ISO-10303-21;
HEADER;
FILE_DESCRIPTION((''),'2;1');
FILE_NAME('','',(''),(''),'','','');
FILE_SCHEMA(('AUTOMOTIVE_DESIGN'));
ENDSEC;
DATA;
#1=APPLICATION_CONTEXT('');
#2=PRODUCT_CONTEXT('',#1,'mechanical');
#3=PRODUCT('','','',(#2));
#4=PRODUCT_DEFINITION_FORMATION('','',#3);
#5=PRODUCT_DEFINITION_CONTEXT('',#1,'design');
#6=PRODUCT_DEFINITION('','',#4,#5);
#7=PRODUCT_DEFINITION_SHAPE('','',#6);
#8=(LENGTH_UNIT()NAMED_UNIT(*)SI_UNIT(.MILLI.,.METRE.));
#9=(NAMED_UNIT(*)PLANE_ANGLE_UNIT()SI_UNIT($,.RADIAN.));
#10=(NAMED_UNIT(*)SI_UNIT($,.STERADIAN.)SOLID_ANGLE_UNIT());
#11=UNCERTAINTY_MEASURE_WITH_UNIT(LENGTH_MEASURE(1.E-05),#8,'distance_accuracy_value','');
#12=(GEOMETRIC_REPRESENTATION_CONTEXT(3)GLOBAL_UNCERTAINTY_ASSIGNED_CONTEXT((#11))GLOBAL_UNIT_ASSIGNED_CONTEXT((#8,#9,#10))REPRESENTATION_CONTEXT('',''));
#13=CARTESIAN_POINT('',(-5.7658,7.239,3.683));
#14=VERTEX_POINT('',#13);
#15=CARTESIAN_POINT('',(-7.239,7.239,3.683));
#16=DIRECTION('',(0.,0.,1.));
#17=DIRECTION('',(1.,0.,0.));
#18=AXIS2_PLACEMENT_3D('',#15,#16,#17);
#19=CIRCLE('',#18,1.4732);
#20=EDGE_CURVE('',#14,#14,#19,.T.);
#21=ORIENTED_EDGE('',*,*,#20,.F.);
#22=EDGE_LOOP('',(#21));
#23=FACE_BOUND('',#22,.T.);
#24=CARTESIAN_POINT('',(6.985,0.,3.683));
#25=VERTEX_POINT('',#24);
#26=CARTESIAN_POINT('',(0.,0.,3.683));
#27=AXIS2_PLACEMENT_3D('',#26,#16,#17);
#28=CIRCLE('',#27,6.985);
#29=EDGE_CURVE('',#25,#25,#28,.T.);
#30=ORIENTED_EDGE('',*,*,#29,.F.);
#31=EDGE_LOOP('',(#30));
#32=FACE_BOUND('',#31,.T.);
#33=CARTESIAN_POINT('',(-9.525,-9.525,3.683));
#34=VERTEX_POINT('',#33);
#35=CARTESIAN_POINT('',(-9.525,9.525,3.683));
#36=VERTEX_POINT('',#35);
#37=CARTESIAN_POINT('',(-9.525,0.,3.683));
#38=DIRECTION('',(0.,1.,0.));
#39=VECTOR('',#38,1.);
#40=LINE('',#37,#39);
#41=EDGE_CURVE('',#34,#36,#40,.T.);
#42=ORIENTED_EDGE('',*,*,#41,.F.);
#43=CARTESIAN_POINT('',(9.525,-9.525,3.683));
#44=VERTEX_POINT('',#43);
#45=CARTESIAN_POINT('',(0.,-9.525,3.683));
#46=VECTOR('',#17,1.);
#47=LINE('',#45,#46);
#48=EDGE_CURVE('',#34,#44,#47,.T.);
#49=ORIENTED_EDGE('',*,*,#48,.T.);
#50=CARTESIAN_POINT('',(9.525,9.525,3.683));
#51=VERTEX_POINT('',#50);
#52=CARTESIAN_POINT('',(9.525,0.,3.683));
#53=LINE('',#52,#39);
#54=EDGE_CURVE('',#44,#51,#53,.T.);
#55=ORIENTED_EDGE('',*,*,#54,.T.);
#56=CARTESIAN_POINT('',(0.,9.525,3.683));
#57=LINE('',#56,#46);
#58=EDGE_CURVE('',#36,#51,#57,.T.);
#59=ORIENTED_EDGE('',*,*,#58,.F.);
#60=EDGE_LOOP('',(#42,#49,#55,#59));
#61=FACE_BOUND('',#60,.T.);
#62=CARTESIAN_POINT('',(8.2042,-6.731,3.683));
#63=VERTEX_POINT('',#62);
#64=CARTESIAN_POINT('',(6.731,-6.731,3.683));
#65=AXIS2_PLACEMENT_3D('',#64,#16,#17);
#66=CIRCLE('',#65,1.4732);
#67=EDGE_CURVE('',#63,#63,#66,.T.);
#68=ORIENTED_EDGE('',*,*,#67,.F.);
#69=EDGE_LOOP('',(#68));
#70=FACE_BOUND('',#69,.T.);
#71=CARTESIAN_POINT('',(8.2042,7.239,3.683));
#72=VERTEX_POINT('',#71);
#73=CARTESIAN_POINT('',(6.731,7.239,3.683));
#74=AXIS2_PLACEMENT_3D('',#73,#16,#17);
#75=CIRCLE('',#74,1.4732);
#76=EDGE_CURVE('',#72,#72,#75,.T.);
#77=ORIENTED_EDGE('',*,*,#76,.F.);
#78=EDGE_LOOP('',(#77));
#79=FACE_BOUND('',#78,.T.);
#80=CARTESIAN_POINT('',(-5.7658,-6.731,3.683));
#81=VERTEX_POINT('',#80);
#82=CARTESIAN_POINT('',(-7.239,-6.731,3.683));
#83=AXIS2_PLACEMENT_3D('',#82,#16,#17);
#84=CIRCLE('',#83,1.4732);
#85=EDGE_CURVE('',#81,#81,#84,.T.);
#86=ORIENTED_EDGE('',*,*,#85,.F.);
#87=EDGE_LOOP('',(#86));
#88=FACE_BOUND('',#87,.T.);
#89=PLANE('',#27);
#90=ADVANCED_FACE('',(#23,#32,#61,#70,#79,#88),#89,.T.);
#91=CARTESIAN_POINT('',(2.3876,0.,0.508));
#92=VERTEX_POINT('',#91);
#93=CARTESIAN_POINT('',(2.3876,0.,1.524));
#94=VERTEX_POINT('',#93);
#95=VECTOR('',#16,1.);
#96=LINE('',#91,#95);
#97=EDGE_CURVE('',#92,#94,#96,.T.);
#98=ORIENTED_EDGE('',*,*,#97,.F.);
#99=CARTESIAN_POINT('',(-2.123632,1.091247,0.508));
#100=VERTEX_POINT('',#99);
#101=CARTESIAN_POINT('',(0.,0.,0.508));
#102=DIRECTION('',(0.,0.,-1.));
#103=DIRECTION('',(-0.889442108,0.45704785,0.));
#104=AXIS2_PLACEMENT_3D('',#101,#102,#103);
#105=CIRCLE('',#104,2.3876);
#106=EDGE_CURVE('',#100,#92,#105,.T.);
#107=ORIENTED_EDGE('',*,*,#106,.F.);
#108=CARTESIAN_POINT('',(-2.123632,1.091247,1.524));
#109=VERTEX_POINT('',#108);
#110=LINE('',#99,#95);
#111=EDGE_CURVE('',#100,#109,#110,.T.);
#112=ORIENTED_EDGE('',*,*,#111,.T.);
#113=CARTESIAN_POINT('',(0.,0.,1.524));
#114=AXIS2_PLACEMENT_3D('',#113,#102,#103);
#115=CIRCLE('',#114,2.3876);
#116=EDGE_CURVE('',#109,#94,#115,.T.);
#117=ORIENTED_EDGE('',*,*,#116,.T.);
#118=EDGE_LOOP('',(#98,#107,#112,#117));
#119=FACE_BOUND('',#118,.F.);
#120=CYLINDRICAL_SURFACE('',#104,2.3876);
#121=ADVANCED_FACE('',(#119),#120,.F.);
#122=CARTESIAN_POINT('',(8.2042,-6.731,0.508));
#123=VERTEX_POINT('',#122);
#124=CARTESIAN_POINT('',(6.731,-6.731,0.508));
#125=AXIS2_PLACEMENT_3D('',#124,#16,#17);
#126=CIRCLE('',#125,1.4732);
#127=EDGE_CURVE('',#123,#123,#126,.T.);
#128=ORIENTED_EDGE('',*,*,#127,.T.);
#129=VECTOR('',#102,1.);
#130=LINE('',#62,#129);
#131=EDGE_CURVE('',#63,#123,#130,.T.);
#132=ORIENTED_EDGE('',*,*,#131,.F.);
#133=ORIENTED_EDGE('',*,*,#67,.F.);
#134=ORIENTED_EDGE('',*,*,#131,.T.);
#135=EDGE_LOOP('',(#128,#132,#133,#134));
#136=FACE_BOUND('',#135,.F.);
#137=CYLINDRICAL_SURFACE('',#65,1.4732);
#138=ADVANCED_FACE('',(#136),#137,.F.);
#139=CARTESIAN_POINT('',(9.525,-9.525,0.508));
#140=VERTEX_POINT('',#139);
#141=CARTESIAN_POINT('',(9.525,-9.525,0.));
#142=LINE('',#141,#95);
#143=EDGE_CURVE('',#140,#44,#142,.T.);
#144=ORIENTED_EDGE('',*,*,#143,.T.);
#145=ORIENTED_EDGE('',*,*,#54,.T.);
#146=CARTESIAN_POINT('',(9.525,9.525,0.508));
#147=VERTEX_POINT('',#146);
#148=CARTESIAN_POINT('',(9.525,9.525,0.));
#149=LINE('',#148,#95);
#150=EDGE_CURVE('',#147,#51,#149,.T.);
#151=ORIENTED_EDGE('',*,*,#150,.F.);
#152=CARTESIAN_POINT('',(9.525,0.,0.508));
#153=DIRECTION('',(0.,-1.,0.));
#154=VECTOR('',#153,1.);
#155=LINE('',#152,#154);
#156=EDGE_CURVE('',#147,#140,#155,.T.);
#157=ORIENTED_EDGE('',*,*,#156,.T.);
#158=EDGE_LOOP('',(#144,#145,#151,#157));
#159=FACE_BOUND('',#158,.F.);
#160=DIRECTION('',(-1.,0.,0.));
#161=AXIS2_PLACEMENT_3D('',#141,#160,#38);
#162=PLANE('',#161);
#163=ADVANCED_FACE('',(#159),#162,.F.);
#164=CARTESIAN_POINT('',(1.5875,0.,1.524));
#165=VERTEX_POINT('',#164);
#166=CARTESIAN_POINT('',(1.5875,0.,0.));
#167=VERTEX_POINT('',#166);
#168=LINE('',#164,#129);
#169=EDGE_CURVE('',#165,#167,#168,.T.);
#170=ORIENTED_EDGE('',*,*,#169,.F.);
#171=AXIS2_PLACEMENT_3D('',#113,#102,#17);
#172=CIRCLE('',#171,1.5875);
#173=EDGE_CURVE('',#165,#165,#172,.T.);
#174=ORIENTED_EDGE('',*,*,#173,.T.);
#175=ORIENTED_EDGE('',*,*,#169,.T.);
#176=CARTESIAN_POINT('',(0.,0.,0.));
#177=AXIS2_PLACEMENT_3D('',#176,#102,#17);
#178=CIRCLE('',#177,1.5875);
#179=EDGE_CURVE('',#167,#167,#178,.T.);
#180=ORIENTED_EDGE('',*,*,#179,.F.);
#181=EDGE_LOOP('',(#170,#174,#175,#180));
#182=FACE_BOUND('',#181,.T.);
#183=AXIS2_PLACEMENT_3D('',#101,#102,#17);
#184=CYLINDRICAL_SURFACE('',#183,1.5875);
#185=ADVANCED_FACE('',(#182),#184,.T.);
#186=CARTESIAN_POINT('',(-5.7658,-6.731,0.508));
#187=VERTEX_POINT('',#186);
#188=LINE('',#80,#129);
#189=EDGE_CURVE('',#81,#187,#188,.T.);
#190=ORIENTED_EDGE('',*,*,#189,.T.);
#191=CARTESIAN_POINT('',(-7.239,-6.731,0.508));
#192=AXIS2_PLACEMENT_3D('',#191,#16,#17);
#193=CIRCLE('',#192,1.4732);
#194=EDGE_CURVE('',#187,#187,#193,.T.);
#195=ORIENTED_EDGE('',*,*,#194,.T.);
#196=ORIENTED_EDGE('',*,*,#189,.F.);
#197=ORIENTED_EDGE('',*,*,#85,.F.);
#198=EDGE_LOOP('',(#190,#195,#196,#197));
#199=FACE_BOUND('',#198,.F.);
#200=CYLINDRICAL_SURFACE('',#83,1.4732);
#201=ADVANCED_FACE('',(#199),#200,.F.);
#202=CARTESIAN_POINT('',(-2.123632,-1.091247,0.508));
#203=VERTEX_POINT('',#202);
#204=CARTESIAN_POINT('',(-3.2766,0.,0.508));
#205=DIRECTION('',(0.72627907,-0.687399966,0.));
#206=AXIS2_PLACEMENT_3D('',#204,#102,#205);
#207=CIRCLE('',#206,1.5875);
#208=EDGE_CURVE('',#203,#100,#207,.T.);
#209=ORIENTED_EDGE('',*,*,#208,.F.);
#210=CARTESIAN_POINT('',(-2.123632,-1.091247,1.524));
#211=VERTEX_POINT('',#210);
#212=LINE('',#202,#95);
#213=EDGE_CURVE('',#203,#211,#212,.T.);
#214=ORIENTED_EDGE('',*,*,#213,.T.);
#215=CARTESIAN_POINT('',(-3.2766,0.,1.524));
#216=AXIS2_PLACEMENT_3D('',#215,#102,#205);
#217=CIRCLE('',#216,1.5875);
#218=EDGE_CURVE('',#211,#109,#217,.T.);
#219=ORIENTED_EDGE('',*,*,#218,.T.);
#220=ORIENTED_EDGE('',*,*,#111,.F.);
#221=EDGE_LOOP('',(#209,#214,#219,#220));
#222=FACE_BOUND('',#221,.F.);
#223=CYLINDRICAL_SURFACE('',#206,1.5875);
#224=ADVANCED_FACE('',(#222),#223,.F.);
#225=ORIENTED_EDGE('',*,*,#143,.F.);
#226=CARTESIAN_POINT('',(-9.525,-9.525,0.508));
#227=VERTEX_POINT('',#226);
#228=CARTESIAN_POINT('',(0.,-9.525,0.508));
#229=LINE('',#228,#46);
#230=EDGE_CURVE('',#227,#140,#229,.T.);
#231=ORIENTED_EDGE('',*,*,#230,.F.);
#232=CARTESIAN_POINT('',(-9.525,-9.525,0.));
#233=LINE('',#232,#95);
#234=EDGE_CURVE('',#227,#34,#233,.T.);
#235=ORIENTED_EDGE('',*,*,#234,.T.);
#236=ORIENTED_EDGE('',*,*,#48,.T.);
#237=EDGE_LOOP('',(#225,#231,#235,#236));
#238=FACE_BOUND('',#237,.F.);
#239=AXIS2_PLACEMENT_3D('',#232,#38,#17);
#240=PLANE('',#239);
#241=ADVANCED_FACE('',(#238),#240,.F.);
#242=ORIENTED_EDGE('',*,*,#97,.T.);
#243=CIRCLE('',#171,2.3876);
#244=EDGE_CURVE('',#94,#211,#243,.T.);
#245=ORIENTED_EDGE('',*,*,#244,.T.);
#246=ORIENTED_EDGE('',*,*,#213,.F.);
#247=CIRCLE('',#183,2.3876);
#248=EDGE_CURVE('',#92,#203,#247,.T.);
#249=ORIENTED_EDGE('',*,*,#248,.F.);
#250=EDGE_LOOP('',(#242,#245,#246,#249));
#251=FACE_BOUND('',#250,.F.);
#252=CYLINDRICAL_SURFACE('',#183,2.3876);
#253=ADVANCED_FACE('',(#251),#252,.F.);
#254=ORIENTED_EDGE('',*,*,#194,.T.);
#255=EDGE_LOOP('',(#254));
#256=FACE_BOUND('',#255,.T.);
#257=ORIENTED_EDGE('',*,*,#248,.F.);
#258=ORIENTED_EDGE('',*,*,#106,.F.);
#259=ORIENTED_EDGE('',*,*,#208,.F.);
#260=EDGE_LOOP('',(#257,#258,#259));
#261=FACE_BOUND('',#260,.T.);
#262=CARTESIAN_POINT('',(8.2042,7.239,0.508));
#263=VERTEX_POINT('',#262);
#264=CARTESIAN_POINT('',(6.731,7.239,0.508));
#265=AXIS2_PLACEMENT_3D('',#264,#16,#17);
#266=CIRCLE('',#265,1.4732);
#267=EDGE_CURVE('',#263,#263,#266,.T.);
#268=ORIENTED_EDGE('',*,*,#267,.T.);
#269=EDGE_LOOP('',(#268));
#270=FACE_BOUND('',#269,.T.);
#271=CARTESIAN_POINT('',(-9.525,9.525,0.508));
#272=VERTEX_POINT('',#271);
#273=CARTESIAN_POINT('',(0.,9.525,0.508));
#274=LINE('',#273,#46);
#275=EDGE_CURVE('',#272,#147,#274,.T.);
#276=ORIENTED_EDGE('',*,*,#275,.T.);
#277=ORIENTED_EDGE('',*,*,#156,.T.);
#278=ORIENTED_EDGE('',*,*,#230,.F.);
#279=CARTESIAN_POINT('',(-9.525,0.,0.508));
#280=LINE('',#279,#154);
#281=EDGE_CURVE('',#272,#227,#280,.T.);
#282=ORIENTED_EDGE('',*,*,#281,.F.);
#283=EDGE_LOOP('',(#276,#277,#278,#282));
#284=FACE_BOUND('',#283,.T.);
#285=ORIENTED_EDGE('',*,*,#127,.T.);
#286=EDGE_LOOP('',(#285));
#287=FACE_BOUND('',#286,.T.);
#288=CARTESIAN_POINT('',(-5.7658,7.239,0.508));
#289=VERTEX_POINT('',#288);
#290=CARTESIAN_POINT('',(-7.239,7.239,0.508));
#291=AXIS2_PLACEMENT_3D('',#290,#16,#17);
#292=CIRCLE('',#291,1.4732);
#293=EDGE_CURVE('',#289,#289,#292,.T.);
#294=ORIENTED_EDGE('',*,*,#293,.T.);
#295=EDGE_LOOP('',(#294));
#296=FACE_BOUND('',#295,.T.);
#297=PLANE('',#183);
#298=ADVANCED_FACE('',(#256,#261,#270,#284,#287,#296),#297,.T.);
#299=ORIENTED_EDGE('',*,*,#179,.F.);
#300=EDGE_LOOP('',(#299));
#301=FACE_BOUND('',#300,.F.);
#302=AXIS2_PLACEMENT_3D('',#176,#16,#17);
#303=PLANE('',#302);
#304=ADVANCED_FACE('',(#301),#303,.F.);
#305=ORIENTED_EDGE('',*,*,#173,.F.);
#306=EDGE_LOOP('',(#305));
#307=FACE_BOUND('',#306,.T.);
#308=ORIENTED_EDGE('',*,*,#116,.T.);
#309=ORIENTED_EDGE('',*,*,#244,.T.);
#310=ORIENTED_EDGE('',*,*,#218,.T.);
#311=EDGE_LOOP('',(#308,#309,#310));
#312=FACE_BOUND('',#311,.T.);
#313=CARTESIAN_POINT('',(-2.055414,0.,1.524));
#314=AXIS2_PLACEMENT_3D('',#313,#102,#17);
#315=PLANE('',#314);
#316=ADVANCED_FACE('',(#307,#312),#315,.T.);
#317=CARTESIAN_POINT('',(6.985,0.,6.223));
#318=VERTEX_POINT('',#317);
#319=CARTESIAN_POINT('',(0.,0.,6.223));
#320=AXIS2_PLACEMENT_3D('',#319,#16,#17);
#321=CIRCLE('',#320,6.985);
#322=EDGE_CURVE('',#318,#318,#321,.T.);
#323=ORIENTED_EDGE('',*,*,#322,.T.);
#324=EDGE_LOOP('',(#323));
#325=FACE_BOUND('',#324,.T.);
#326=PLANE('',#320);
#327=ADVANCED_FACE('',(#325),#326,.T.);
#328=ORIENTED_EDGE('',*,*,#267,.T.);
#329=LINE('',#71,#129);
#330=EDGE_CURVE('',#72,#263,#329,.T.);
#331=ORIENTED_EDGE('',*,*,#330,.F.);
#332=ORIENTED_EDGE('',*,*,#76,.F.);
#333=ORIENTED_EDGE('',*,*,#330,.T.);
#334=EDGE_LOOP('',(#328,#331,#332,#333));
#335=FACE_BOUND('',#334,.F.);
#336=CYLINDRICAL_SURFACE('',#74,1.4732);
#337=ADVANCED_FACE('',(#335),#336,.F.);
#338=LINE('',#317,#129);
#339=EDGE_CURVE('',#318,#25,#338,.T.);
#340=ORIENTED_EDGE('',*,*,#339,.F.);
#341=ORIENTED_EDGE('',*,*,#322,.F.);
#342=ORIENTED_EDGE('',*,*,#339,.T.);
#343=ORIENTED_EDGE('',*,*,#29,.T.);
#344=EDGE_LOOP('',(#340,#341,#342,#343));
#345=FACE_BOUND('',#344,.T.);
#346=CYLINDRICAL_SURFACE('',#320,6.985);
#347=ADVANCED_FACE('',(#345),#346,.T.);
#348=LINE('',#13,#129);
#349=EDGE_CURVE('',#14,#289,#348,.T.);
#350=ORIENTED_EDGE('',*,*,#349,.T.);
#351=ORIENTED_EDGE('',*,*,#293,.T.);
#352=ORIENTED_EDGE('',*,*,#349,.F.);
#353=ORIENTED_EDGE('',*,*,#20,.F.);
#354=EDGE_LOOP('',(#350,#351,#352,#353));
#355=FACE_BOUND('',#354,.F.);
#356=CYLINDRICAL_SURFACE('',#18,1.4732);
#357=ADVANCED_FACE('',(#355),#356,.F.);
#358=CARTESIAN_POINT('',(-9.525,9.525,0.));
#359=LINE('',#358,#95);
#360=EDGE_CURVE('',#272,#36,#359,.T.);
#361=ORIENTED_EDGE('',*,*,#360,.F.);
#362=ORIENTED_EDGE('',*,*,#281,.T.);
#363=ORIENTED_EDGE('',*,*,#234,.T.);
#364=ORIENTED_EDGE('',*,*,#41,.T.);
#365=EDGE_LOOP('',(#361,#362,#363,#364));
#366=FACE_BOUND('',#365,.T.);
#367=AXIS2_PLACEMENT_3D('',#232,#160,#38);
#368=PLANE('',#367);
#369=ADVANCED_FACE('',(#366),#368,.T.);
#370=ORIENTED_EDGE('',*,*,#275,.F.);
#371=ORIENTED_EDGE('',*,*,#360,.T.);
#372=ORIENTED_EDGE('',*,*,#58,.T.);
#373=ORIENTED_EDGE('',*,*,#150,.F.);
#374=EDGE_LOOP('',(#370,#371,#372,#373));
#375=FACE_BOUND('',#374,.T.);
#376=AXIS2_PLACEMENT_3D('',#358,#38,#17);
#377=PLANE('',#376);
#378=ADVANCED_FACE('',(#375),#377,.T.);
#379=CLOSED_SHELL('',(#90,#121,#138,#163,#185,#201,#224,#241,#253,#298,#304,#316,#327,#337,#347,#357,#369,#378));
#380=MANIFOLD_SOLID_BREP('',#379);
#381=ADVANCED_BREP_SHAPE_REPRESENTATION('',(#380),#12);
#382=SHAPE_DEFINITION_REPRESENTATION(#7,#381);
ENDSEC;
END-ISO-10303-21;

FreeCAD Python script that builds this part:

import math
import FreeCAD as App
import Part
import Sketcher

V = App.Vector
Q = App.Units.Quantity

doc = App.newDocument("Part")
body = doc.addObject("PartDesign::Body", "Body")

# Sketch on XY plane
sketch1 = doc.addObject("Sketcher::SketchObject", "Sketch")
body.addObject(sketch1)
sketch1.AttachmentSupport = (doc.XY_Plane, [""])
sketch1.MapMode = "FlatFace"
sketch1.addGeometry([
    Part.LineSegment(V(-10, 10, 0), V(-10, -10, 0)),
    Part.LineSegment(V(-10, -10, 0), V(10, -10, 0)),
    Part.LineSegment(V(10, -10, 0), V(10, 10, 0)),
    Part.LineSegment(V(10, 10, 0), V(-10, 10, 0)),
], False)
sketch1.addConstraint([
    Sketcher.Constraint("Coincident", 0, 2, 1, 1),
    Sketcher.Constraint("Coincident", 1, 2, 2, 1),
    Sketcher.Constraint("Coincident", 2, 2, 3, 1),
    Sketcher.Constraint("Coincident", 3, 2, 0, 1),
    Sketcher.Constraint("Vertical", 0),
    Sketcher.Constraint("Horizontal", 1),
    Sketcher.Constraint("Vertical", 2),
    Sketcher.Constraint("Horizontal", 3),
    Sketcher.Constraint("Symmetric", 0, 2, 2, 2, -1, 1),
    Sketcher.Constraint("Equal", 3, 0),
    Sketcher.Constraint("DistanceX", 1, 1, 1, 2, Q("0.75 in")),
])
pad1 = doc.addObject("PartDesign::Pad", "Pad")
body.addObject(pad1)
pad1.Profile = sketch1
pad1.Length = Q("0.245 in")

# Sketch on XY plane
sketch2 = doc.addObject("Sketcher::SketchObject", "Sketch001")
body.addObject(sketch2)
sketch2.AttachmentSupport = (doc.XY_Plane, [""])
sketch2.MapMode = "FlatFace"
sketch2.AttachmentOffset = App.Placement(V(0, 0, 0.245 * 25.4), App.Rotation())
sketch2.addGeometry([
    Part.LineSegment(V(-10, 10, 0), V(-10, -10, 0)),  # 0
    Part.LineSegment(V(-10, -10, 0), V(10, -10, 0)),  # 1
    Part.LineSegment(V(10, -10, 0), V(10, 10, 0)),  # 2
    Part.LineSegment(V(10, 10, 0), V(-10, 10, 0)),  # 3
    Part.Circle(V(0, 0, 0), V(0, 0, 1), 7),  # 4
], False)
sketch2.addConstraint([
    Sketcher.Constraint("Coincident", 0, 2, 1, 1),
    Sketcher.Constraint("Coincident", 1, 2, 2, 1),
    Sketcher.Constraint("Coincident", 2, 2, 3, 1),
    Sketcher.Constraint("Coincident", 3, 2, 0, 1),
    Sketcher.Constraint("Vertical", 0),
    Sketcher.Constraint("Horizontal", 1),
    Sketcher.Constraint("Vertical", 2),
    Sketcher.Constraint("Horizontal", 3),
    Sketcher.Constraint("Coincident", 4, 3, -1, 1),
    Sketcher.Constraint("Symmetric", 0, 2, 2, 2, -1, 1),
    Sketcher.Constraint("Equal", 3, 0),
    Sketcher.Constraint("Diameter", 4, Q("0.55 in")),
    Sketcher.Constraint("DistanceX", 1, 1, 1, 2, Q("0.75 in")),
])
pocket1 = doc.addObject("PartDesign::Pocket", "Pocket")
body.addObject(pocket1)
pocket1.Profile = sketch2
pocket1.Length = Q("0.1 in")

# Sketch on XY plane
sketch3 = doc.addObject("Sketcher::SketchObject", "Sketch002")
body.addObject(sketch3)
sketch3.AttachmentSupport = (doc.XY_Plane, [""])
sketch3.MapMode = "FlatFace"
sketch3.AttachmentOffset = App.Placement(V(0, 0, 0.145 * 25.4), App.Rotation())
sketch3.addGeometry([
    Part.Circle(V(-7.2, 7.2, 0), V(0, 0, 1), 1.5),
    Part.Circle(V(-7.2, -6.7, 0), V(0, 0, 1), 1.5),
    Part.Circle(V(6.7, 7.2, 0), V(0, 0, 1), 1.5),
    Part.Circle(V(6.7, -6.7, 0), V(0, 0, 1), 1.5),
], False)
sketch3.addConstraint([
    Sketcher.Constraint("Equal", 0, 1),
    Sketcher.Constraint("Equal", 1, 2),
    Sketcher.Constraint("Equal", 2, 3),
    Sketcher.Constraint("Horizontal", 0, 3, 2, 3),
    Sketcher.Constraint("Horizontal", 1, 3, 3, 3),
    Sketcher.Constraint("Vertical", 0, 3, 1, 3),
    Sketcher.Constraint("Vertical", 2, 3, 3, 3),
    Sketcher.Constraint("Diameter", 0, Q("0.116 in")),
    Sketcher.Constraint("DistanceY", 1, 3, 0, 3, Q("0.55 in")),
    Sketcher.Constraint("DistanceX", 0, 3, 2, 3, Q("0.55 in")),
    Sketcher.Constraint("DistanceX", 0, 3, -1, 1, Q("0.285 in")),
    Sketcher.Constraint("DistanceY", -1, 1, 0, 3, Q("0.285 in")),
])
pocket2 = doc.addObject("PartDesign::Pocket", "Pocket001")
body.addObject(pocket2)
pocket2.Profile = sketch3
pocket2.Type = "ThroughAll"

# Sketch on XY plane
sketch4 = doc.addObject("Sketcher::SketchObject", "Sketch003")
body.addObject(sketch4)
sketch4.AttachmentSupport = (doc.XY_Plane, [""])
sketch4.MapMode = "FlatFace"
sketch4.addGeometry([
    Part.LineSegment(V(-9.5, -9.5, 0), V(-9.5, 9.5, 0)),  # 0
    Part.LineSegment(V(-9.5, 9.5, 0), V(9.5, 9.5, 0)),  # 1
    Part.LineSegment(V(9.5, 9.5, 0), V(9.5, -9.5, 0)),  # 2
    Part.LineSegment(V(9.5, -9.5, 0), V(-9.5, -9.5, 0)),  # 3
    Part.Circle(V(0, 0, 0), V(0, 0, 1), 1.6),  # 4
], False)
sketch4.addConstraint([
    Sketcher.Constraint("Coincident", 0, 2, 1, 1),
    Sketcher.Constraint("Coincident", 1, 2, 2, 1),
    Sketcher.Constraint("Coincident", 2, 2, 3, 1),
    Sketcher.Constraint("Coincident", 3, 2, 0, 1),
    Sketcher.Constraint("Vertical", 0),
    Sketcher.Constraint("Horizontal", 1),
    Sketcher.Constraint("Vertical", 2),
    Sketcher.Constraint("Horizontal", 3),
    Sketcher.Constraint("Coincident", 4, 3, -1, 1),
    Sketcher.Constraint("Symmetric", 0, 2, 2, 2, -1, 1),
    Sketcher.Constraint("Equal", 3, 0),
    Sketcher.Constraint("Diameter", 4, Q("0.125 in")),
    Sketcher.Constraint("DistanceX", 1, 1, 1, 2, Q("0.75 in")),
])
pocket3 = doc.addObject("PartDesign::Pocket", "Pocket002")
body.addObject(pocket3)
pocket3.Profile = sketch4
pocket3.Length = Q("0.02 in")
pocket3.Reversed = True

# Sketch on XY plane
sketch5 = doc.addObject("Sketcher::SketchObject", "Sketch004")
body.addObject(sketch5)
sketch5.AttachmentSupport = (doc.XY_Plane, [""])
sketch5.MapMode = "FlatFace"
sketch5.AttachmentOffset = App.Placement(V(0, 0, 0.02 * 25.4), App.Rotation())
sketch5.addGeometry([
    Part.ArcOfCircle(Part.Circle(V(0, 0, 0), V(0, 0, 1), 2.4), math.radians(-153), math.radians(0)),
    Part.ArcOfCircle(Part.Circle(V(-3.3, 0, 0), V(0, 0, 1), 1.6), math.radians(43), math.radians(317)),
    Part.ArcOfCircle(Part.Circle(V(0, 0, 0), V(0, 0, 1), 2.4), math.radians(0), math.radians(153)),
    Part.Circle(V(0, 0, 0), V(0, 0, 1), 1.6),
], False)
sketch5.addConstraint([
    Sketcher.Constraint("Coincident", 0, 1, 1, 2),
    Sketcher.Constraint("Coincident", 1, 1, 2, 2),
    Sketcher.Constraint("Tangent", 2, 1, 0, 2),
    Sketcher.Constraint("Coincident", 0, 3, -1, 1),
    Sketcher.Constraint("Coincident", 3, 3, -1, 1),
    Sketcher.Constraint("Equal", 0, 2),
    Sketcher.Constraint("Equal", 1, 3),
    Sketcher.Constraint("PointOnObject", 1, 3, -1),
    Sketcher.Constraint("PointOnObject", 2, 1, -1),
    Sketcher.Constraint("Diameter", 3, Q("0.125 in")),
    Sketcher.Constraint("Radius", 0, Q("0.094 in")),
    Sketcher.Constraint("DistanceX", 1, 3, -1, 1, Q("0.129 in")),
])
pocket4 = doc.addObject("PartDesign::Pocket", "Pocket003")
body.addObject(pocket4)
pocket4.Profile = sketch5
pocket4.Length = Q("0.04 in")
pocket4.Reversed = True

doc.recompute()
